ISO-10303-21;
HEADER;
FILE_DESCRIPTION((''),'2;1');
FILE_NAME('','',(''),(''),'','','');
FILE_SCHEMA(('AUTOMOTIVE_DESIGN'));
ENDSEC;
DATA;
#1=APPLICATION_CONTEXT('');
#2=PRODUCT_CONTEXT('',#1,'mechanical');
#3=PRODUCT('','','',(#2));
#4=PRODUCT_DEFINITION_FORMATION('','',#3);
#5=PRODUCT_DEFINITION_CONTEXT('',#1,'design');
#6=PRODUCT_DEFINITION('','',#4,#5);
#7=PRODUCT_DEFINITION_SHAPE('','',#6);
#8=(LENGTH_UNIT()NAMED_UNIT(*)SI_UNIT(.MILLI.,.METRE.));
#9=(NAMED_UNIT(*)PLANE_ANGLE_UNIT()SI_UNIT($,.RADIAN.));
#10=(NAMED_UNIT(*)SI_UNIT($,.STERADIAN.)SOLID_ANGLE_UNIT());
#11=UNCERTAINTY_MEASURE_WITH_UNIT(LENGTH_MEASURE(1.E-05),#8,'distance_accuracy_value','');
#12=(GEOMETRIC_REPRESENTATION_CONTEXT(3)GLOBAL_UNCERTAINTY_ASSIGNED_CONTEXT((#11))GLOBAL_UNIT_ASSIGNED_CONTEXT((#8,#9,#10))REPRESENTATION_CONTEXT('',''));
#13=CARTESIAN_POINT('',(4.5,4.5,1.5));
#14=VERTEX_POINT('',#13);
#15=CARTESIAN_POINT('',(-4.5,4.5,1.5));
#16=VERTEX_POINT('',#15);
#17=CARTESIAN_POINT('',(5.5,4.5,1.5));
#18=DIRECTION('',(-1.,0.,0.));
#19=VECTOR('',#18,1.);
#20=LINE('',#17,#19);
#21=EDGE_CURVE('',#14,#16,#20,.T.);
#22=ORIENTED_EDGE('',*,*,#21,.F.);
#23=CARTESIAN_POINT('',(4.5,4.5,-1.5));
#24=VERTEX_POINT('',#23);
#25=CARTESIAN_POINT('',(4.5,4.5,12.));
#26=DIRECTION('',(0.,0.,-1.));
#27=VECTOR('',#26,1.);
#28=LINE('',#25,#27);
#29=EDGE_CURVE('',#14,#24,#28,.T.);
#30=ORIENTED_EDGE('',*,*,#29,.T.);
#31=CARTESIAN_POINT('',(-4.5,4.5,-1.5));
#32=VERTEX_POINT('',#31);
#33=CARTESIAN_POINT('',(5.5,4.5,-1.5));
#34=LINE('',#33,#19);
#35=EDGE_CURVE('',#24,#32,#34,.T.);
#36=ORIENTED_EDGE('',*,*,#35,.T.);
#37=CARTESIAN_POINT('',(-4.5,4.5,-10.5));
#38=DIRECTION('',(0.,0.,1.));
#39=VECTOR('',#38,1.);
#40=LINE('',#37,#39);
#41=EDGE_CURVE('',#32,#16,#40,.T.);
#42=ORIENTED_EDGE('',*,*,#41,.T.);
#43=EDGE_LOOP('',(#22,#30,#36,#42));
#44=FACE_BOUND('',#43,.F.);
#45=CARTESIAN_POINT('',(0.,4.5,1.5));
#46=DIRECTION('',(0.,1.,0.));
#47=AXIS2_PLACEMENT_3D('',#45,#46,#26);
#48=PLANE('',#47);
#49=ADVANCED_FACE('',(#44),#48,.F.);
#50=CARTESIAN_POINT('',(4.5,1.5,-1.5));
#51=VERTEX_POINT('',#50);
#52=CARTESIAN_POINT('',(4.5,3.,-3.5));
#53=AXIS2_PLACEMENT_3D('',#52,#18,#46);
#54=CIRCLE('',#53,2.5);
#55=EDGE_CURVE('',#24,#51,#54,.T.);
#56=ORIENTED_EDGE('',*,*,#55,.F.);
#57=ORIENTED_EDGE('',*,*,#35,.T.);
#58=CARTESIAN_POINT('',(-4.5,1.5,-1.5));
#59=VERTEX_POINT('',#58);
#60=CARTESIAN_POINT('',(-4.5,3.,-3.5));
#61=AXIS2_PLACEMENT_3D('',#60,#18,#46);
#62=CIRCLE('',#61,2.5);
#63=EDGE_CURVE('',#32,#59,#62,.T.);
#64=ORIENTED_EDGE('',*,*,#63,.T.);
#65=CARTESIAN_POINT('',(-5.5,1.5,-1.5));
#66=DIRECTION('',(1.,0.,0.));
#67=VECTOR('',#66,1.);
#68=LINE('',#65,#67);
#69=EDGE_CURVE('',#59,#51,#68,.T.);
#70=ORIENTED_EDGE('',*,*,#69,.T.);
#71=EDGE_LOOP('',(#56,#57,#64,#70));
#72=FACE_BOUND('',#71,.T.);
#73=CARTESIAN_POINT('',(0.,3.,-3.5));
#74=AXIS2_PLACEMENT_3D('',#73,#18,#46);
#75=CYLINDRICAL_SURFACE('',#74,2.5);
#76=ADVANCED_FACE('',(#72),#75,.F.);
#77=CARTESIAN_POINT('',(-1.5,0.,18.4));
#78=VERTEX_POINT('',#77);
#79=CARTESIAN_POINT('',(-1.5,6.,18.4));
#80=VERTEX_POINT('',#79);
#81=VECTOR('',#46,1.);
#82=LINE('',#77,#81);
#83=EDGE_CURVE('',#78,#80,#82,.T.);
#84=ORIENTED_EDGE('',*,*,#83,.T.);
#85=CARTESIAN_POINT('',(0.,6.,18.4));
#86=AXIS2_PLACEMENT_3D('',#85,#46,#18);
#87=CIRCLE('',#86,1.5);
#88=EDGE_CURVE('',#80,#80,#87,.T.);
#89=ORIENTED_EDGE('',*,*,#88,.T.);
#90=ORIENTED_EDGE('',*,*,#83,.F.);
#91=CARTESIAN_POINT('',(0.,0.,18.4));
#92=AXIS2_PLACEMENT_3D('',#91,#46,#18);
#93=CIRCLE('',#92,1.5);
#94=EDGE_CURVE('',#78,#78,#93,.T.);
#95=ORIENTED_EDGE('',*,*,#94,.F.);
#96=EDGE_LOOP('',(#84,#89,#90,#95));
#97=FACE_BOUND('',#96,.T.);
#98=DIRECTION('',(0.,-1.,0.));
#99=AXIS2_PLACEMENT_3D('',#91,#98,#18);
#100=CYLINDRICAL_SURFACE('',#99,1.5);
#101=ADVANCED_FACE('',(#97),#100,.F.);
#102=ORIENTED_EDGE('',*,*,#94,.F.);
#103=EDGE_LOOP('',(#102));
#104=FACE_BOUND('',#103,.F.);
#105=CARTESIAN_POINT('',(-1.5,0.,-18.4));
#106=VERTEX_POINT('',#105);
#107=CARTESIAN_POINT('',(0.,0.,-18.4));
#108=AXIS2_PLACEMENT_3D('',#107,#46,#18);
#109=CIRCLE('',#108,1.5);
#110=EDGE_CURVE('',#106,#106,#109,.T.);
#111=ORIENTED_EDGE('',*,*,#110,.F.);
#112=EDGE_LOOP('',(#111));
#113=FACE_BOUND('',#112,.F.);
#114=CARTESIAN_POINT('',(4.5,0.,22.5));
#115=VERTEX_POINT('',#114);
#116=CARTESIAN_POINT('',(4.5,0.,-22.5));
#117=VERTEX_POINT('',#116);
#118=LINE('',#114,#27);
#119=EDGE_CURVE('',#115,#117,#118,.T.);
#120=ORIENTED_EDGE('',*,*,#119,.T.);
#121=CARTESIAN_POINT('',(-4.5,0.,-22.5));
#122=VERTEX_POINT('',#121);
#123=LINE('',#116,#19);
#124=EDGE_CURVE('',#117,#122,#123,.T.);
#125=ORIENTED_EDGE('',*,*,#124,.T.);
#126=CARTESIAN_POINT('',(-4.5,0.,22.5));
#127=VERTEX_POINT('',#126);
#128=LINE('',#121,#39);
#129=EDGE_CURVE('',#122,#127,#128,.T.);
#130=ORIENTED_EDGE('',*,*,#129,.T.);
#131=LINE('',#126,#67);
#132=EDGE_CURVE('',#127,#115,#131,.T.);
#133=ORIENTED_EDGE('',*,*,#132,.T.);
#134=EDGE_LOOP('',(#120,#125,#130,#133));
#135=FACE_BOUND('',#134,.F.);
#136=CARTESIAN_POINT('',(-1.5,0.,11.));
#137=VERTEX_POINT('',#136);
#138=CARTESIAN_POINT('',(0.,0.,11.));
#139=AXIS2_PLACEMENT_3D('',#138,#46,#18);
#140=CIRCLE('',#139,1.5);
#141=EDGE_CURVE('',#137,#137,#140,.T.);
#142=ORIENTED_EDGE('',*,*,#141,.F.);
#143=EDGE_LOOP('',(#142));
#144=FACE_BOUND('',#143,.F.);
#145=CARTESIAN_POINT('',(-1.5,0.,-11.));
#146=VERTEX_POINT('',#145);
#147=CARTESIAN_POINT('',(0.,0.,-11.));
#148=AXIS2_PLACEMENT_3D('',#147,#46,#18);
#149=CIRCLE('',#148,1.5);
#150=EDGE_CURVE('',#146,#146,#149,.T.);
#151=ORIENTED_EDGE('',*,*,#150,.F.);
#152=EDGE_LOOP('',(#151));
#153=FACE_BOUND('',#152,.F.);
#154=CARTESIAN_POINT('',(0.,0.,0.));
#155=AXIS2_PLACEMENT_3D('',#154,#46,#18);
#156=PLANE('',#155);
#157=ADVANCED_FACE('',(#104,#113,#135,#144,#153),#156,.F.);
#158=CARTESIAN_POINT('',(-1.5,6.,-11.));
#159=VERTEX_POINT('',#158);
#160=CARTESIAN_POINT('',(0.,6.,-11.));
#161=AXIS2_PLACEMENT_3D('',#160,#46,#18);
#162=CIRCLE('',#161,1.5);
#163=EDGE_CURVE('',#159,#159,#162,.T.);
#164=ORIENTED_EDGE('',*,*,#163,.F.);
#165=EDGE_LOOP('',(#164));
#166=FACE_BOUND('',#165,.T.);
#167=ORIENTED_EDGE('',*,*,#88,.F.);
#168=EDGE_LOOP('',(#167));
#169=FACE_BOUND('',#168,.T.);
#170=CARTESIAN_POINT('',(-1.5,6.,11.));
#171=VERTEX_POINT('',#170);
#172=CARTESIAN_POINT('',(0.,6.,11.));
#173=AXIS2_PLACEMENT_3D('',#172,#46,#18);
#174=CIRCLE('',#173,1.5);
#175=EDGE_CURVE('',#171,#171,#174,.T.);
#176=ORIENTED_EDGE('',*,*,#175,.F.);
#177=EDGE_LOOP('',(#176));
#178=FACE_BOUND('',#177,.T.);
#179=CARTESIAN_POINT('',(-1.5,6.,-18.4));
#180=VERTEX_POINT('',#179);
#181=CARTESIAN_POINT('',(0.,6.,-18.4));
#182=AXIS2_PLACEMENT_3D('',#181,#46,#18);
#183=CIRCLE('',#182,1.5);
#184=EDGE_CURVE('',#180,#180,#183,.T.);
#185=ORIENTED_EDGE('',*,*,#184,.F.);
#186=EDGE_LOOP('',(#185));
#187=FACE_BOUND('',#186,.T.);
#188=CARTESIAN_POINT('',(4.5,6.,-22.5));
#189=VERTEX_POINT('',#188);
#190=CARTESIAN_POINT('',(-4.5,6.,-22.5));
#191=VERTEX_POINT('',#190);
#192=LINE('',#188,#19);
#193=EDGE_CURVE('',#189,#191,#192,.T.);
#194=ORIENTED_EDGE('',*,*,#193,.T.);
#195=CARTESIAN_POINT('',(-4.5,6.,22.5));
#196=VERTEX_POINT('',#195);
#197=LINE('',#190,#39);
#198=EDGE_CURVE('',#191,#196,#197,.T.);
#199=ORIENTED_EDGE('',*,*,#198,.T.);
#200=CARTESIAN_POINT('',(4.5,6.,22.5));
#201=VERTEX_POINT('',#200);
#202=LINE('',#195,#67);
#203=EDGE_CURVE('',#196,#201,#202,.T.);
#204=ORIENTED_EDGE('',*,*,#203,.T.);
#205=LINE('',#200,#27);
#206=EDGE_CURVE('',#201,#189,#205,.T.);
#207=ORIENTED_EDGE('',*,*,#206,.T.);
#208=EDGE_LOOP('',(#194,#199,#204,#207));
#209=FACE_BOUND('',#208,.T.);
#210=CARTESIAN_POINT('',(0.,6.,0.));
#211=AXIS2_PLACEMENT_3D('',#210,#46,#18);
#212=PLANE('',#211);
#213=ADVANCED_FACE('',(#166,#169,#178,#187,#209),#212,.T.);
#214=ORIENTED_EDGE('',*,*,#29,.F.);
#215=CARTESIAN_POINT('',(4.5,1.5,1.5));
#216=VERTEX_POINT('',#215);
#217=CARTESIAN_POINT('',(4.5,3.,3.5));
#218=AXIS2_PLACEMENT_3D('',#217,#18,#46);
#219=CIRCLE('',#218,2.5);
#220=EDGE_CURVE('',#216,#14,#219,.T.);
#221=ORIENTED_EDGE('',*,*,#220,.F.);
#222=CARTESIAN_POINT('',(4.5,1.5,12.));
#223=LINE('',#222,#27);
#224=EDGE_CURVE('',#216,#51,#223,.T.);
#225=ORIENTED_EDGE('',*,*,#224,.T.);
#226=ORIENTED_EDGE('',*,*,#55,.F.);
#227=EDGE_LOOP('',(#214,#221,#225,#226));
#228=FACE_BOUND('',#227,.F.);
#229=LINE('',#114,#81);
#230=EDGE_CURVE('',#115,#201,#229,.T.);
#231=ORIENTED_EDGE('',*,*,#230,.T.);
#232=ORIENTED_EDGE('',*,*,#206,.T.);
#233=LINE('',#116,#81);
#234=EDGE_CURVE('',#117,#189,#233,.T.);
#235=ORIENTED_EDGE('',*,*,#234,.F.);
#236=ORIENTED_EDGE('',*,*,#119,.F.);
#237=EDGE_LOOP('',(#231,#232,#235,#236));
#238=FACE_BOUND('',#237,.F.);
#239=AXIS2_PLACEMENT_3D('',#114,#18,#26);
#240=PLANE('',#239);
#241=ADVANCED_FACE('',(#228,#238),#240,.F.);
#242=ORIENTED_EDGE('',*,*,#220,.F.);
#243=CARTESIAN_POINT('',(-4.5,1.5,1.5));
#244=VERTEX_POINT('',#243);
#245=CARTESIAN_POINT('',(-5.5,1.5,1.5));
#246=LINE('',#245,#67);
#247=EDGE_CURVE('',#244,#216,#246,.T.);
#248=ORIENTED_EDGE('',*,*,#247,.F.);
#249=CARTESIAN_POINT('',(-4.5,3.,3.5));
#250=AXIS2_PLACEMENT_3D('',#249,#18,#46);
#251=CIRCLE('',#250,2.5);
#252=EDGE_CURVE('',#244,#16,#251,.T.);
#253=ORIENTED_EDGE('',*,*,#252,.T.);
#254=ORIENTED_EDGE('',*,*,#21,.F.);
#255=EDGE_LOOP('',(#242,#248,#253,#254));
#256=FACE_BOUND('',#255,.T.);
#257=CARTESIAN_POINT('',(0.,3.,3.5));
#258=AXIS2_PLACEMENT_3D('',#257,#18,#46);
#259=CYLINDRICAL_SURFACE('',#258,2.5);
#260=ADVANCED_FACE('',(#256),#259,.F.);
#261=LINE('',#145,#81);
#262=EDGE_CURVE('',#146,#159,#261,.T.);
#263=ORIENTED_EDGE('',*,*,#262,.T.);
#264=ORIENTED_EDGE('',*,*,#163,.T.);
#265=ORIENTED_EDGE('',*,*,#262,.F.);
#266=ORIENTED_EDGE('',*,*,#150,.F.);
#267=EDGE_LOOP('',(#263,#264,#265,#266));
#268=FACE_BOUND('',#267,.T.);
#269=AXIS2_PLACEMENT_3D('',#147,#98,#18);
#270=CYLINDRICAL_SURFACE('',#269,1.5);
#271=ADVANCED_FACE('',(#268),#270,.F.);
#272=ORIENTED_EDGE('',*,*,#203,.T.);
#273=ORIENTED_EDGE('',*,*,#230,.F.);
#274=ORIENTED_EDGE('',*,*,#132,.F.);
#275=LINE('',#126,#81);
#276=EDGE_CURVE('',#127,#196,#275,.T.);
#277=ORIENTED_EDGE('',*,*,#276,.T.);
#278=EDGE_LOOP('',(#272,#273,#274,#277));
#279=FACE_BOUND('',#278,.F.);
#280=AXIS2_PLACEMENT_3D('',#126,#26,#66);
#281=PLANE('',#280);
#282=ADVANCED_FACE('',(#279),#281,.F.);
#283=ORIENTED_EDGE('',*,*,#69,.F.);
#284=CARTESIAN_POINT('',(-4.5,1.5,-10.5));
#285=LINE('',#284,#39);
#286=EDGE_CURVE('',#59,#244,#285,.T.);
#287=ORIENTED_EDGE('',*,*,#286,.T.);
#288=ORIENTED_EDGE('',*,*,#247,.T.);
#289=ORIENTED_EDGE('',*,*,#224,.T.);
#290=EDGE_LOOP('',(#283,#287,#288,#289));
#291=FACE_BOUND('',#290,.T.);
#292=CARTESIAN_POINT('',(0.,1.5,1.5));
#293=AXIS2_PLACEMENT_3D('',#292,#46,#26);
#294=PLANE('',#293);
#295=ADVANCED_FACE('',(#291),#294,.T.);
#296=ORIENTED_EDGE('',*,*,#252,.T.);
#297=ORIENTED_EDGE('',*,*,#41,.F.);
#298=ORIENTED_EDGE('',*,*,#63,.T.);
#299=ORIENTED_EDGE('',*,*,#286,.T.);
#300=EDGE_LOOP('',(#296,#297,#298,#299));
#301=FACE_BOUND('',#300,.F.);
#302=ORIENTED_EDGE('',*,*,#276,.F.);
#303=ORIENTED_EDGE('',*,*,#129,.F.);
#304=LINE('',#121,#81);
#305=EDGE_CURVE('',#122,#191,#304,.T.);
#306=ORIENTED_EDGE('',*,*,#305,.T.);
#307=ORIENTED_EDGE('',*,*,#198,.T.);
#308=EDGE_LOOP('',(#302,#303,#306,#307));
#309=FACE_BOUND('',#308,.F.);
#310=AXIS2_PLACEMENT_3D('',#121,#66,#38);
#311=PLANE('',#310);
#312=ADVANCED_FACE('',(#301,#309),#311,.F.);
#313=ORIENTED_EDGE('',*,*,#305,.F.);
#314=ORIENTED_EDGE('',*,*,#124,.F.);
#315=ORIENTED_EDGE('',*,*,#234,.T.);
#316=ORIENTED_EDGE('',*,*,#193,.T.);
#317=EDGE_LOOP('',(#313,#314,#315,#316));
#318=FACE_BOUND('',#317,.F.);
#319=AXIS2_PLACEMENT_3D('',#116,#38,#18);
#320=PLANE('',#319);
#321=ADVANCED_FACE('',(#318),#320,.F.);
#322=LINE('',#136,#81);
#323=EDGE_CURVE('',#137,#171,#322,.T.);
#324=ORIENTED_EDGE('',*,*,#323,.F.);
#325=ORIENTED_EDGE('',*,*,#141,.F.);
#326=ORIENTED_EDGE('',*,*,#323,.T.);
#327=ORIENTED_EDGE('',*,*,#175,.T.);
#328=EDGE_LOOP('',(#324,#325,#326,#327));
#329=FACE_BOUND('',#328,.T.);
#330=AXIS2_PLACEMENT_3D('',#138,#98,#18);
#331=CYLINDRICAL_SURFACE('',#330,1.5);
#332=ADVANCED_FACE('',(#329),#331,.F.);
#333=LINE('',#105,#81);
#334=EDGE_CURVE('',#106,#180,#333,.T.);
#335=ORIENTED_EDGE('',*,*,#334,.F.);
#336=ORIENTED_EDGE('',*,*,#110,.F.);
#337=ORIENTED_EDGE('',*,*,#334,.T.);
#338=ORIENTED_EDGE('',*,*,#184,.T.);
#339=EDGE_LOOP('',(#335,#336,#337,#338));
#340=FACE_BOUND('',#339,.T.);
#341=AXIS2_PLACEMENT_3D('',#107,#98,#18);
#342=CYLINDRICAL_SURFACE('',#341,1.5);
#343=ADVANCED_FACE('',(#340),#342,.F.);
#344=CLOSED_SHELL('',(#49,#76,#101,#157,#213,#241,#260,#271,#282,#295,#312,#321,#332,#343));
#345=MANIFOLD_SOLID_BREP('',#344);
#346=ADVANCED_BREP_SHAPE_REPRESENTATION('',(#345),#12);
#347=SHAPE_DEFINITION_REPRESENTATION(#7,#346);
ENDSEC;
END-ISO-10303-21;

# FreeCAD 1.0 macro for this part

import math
import FreeCAD as App
import Part
import Sketcher
Q = App.Units.Quantity


def add_polygon(sketch, points):
    """Adds a closed chain of lines whose ends are joined by coincident constraints."""
    first, n = sketch.GeometryCount, len(points)
    for a, b in zip(points, points[1:] + points[:1]):
        sketch.addGeometry(Part.LineSegment(App.Vector(*a, 0), App.Vector(*b, 0)), False)
    for i in range(n):
        sketch.addConstraint(Sketcher.Constraint("Coincident", first + i, 2, first + (i + 1) % n, 1))

doc = App.newDocument("Part")
params = doc.addObject("Spreadsheet::Sheet", "Params")
for row, (alias, value) in enumerate([
    ("sketch1_diameter", "3 mm"),
    ("sketch1_width", "9 mm"),
    ("sketch1_height", "45 mm"),
    ("pad1_length", "6 mm"),
    ("sketch2_radius", "2.5 mm"),
    ("sketch2_height", "3 mm"),
], start=1):
    params.set(f"A{row}", alias)
    params.set(f"B{row}", "=" + value)
    params.setAlias(f"B{row}", alias)

body = doc.addObject("PartDesign::Body", "Body")

# Sketch on XZ plane
sketch1 = doc.addObject("Sketcher::SketchObject", "Sketch")
body.addObject(sketch1)
sketch1.AttachmentSupport = (doc.XZ_Plane, [""])
sketch1.MapMode = "FlatFace"
add_polygon(sketch1, [(-4.5, -22.5), (-4.5, 22.5), (4.5, 22.5), (4.5, -22.5)])  # lines 0-3
sketch1.addGeometry(Part.Circle(App.Vector(0, -18.4, 0), App.Vector(0, 0, 1), 1.5), False)  # 4
sketch1.addGeometry(Part.Circle(App.Vector(0, -11, 0), App.Vector(0, 0, 1), 1.5), False)  # 5
sketch1.addGeometry(Part.Circle(App.Vector(0, 11, 0), App.Vector(0, 0, 1), 1.5), False)  # 6
sketch1.addGeometry(Part.Circle(App.Vector(0, 18.4, 0), App.Vector(0, 0, 1), 1.5), False)  # 7
sketch1.addConstraint([
    Sketcher.Constraint("Vertical", 0),
    Sketcher.Constraint("Horizontal", 1),
    Sketcher.Constraint("Vertical", 2),
    Sketcher.Constraint("Horizontal", 3),
    Sketcher.Constraint("Equal", 4, 5),
    Sketcher.Constraint("Equal", 5, 6),
    Sketcher.Constraint("Equal", 6, 7),
    Sketcher.Constraint("Symmetric", 5, 3, 6, 3, -1, 1),
    Sketcher.Constraint("Symmetric", 4, 3, 7, 3, -1, 1),
    Sketcher.Constraint("Symmetric", 0, 2, 2, 2, -1, 1),
    Sketcher.Constraint("PointOnObject", 4, 3, -2),
    Sketcher.Constraint("PointOnObject", 5, 3, -2),
    Sketcher.Constraint("Diameter", 4, Q("3 mm")),
    Sketcher.Constraint("DistanceX", 1, 1, 1, 2, Q("9 mm")),
    Sketcher.Constraint("DistanceY", 0, 1, 0, 2, Q("45 mm")),
    Sketcher.Constraint("DistanceY", 5, 3, 6, 3, Q("22 mm")),
    Sketcher.Constraint("DistanceY", 4, 3, 5, 3, Q("7.4 mm")),
])
sketch1.setExpression("Constraints[16]", "Params.sketch1_diameter")
sketch1.setExpression("Constraints[17]", "Params.sketch1_width")
sketch1.setExpression("Constraints[18]", "Params.sketch1_height")
pad1 = doc.addObject("PartDesign::Pad", "Pad")
body.addObject(pad1)
pad1.Profile = sketch1
pad1.setExpression("Length", "Params.pad1_length")
pad1.Reversed = True

# Sketch on YZ plane
sketch2 = doc.addObject("Sketcher::SketchObject", "Sketch001")
body.addObject(sketch2)
sketch2.AttachmentSupport = (doc.YZ_Plane, [""])
sketch2.MapMode = "FlatFace"
sketch2.addGeometry([
    Part.ArcOfCircle(Part.Circle(App.Vector(3, 3.5, 0), App.Vector(0, 0, 1), 2.5), math.radians(-53), math.radians(233)),
    Part.LineSegment(App.Vector(1.5, 1.5, 0), App.Vector(1.5, -1.5, 0)),
    Part.ArcOfCircle(Part.Circle(App.Vector(3, -3.5, 0), App.Vector(0, 0, 1), 2.5), math.radians(127), math.radians(413)),
    Part.LineSegment(App.Vector(4.5, -1.5, 0), App.Vector(4.5, 1.5, 0)),
], False)
sketch2.addConstraint([
    Sketcher.Constraint("Coincident", 0, 2, 1, 1),
    Sketcher.Constraint("Coincident", 1, 2, 2, 1),
    Sketcher.Constraint("Coincident", 2, 2, 3, 1),
    Sketcher.Constraint("Coincident", 3, 2, 0, 1),
    Sketcher.Constraint("Vertical", 1),
    Sketcher.Constraint("Vertical", 3),
    Sketcher.Constraint("Equal", 0, 2),
    Sketcher.Constraint("Symmetric", 0, 3, 2, 3, -1),
    Sketcher.Constraint("Horizontal", 1, 2, 2, 2),
    Sketcher.Constraint("Radius", 0, Q("2.5 mm")),
    Sketcher.Constraint("DistanceY", 1, 2, 1, 1, Q("3 mm")),
    Sketcher.Constraint("DistanceX", -1, 1, 0, 3, Q("3 mm")),
    Sketcher.Constraint("DistanceY", 2, 3, 0, 3, Q("7 mm")),
])
sketch2.setExpression("Constraints[9]", "Params.sketch2_radius")
sketch2.setExpression("Constraints[10]", "Params.sketch2_height")
pocket1 = doc.addObject("PartDesign::Pocket", "Pocket")
body.addObject(pocket1)
pocket1.Profile = sketch2
pocket1.Type = "ThroughAll"
pocket1.Midplane = True

doc.recompute()
